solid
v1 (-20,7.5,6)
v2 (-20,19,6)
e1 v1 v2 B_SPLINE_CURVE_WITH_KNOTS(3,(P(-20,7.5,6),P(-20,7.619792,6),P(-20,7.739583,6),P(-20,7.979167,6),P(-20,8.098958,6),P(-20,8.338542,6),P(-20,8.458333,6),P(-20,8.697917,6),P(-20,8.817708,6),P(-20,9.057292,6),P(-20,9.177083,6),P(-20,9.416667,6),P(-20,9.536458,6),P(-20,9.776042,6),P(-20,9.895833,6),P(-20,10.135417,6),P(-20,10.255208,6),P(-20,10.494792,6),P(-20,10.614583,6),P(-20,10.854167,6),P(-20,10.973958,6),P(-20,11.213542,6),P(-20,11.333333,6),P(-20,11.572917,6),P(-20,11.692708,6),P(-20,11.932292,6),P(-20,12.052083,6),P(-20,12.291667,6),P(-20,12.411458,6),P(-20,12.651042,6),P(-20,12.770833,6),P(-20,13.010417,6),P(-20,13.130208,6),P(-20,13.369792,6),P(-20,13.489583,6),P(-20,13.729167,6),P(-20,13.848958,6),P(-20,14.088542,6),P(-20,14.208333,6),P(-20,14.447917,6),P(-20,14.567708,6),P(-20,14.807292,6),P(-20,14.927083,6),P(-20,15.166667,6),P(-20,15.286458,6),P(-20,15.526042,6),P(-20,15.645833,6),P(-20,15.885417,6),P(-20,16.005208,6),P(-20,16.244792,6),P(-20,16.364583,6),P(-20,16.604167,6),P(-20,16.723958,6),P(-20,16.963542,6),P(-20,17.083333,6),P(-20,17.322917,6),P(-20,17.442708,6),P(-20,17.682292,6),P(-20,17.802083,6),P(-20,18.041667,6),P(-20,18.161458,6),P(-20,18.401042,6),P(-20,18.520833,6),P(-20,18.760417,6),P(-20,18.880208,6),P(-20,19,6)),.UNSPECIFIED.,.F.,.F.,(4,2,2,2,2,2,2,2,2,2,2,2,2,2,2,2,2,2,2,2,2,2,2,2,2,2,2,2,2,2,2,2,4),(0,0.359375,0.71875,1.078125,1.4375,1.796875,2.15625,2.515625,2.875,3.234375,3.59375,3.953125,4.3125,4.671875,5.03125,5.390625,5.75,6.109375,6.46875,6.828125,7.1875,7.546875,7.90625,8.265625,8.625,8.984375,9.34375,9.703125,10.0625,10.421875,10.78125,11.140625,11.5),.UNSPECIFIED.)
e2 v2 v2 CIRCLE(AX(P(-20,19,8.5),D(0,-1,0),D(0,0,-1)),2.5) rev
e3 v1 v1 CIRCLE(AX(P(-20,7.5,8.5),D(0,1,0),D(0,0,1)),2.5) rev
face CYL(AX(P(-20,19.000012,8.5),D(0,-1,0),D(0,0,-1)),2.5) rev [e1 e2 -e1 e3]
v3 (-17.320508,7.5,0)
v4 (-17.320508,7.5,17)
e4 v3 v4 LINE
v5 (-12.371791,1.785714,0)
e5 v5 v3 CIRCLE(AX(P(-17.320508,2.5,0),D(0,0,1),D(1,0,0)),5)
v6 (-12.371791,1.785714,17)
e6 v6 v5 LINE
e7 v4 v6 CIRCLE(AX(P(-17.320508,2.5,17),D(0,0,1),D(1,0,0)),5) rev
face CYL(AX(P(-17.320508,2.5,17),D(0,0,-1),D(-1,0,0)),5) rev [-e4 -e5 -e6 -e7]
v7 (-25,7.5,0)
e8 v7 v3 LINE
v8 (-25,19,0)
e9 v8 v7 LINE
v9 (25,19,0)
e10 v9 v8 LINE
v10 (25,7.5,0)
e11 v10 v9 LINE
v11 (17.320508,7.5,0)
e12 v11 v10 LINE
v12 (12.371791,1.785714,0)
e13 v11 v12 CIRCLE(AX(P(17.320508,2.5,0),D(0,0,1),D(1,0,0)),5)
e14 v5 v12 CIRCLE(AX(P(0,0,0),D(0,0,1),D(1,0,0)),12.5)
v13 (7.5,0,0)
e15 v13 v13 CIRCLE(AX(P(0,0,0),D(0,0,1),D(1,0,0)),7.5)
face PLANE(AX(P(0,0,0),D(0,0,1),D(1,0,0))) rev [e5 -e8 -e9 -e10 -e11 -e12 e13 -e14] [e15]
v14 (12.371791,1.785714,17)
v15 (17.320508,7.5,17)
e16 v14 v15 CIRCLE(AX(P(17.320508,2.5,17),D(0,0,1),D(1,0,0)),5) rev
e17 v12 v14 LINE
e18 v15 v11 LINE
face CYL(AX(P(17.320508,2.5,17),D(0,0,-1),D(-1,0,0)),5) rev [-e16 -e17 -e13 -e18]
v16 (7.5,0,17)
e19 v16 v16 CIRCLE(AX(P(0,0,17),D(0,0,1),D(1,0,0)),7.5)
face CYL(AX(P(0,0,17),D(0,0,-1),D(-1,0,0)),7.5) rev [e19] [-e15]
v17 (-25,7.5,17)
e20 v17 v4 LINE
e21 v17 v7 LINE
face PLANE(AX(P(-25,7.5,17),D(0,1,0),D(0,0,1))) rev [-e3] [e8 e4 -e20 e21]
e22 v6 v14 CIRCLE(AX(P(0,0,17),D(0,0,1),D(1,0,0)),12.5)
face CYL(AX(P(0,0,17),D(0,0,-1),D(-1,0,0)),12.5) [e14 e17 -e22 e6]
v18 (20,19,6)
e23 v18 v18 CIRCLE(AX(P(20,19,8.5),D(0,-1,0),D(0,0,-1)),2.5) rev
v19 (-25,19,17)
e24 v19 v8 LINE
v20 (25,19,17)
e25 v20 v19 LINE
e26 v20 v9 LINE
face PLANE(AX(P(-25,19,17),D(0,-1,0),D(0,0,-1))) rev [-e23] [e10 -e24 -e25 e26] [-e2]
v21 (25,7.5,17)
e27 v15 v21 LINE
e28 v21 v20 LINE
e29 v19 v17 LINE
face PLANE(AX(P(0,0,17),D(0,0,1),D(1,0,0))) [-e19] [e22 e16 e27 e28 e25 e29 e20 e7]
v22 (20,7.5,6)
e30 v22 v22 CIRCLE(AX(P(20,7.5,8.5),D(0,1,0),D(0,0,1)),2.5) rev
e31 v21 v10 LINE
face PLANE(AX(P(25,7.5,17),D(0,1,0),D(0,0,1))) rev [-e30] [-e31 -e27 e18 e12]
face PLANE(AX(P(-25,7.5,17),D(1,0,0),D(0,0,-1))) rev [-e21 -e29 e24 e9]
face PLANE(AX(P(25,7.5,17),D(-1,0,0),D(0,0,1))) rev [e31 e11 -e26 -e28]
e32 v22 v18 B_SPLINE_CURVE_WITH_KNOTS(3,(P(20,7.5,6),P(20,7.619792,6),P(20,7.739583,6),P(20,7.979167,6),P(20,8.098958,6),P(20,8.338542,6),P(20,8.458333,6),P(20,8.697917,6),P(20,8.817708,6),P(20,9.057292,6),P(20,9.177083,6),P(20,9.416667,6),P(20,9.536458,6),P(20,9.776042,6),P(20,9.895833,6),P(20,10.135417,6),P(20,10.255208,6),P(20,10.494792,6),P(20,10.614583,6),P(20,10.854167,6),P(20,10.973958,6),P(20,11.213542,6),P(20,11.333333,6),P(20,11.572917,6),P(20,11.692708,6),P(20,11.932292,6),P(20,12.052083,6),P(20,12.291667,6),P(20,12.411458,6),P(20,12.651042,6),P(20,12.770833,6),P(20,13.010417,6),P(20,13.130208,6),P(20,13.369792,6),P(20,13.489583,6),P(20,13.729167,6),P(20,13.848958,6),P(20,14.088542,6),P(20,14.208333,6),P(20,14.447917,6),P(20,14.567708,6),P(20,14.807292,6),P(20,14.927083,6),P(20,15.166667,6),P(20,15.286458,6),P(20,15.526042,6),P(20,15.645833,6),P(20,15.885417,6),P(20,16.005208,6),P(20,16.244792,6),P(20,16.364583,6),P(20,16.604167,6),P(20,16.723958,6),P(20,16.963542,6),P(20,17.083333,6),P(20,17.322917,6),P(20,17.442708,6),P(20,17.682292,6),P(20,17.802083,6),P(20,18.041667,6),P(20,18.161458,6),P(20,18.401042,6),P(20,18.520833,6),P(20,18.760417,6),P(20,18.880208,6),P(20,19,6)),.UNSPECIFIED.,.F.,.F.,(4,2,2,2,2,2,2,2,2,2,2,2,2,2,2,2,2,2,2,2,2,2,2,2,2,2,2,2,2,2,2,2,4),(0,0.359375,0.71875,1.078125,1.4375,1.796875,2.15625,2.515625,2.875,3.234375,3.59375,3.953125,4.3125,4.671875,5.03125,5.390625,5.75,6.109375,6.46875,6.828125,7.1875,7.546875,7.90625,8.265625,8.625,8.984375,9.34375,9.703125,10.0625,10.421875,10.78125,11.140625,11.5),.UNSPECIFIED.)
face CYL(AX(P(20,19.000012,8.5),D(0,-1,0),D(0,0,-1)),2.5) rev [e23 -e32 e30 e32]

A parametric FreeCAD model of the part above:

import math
import FreeCAD as App
import Part
import Sketcher

V = App.Vector
Q = App.Units.Quantity


def edges_at(feature, points):
    """Names of the edges that pass closest to the given points."""
    edges = feature.Shape.Edges
    near = lambda p: min(range(len(edges)), key=lambda i: edges[i].distToShape(Part.Vertex(*p))[0])
    return sorted({f"Edge{near(p) + 1}" for p in points})

doc = App.newDocument("Part")
params = doc.addObject("Spreadsheet::Sheet", "Params")
for row, (alias, value) in enumerate([
    ("sketch1_diameter", "15 mm"),
    ("sketch1_radius", "12.5 mm"),
    ("sketch1_width", "50 mm"),
    ("sketch1_width2", "15 mm"),
    ("sketch1_height", "11.5 mm"),
    ("pad1_length", "17 mm"),
    ("sketch2_diameter", "5 mm"),
    ("sketch3_diameter", "5 mm"),
    ("sketch4_diameter", "5 mm"),
    ("pocket3_length", "44.660623 mm"),
    ("fillet_radius", "5 mm"),
    ("fillet2_radius", "5 mm"),
], start=1):
    params.set(f"A{row}", alias)
    params.set(f"B{row}", "=" + value)
    params.setAlias(f"B{row}", alias)

body = doc.addObject("PartDesign::Body", "Body")

# Sketch on XY plane
sketch1 = body.newObject("Sketcher::SketchObject", "Sketch")
sketch1.AttachmentSupport = (doc.getObject("XY_Plane"), [""])
sketch1.MapMode = "FlatFace"
sketch1.addGeometry([
    Part.LineSegment(V(25, 19, 0), V(-25, 19, 0)),  # 0
    Part.LineSegment(V(-25, 19, 0), V(-25, 7.5, 0)),  # 1
    Part.LineSegment(V(-25, 7.5, 0), V(-10, 7.5, 0)),  # 2
    Part.ArcOfCircle(Part.Circle(V(0, 0, 0), V(0, 0, 1), 12.5), math.radians(143.130102), math.radians(396.869898)),  # 3
    Part.LineSegment(V(10, 7.5, 0), V(25, 7.5, 0)),  # 4
    Part.LineSegment(V(25, 7.5, 0), V(25, 19, 0)),  # 5
    Part.Circle(V(0, 0, 0), V(0, 0, 1), 7.5),  # 6
], False)
sketch1.addConstraint([
    Sketcher.Constraint("Coincident", 0, 2, 1, 1),
    Sketcher.Constraint("Coincident", 1, 2, 2, 1),
    Sketcher.Constraint("Coincident", 2, 2, 3, 1),
    Sketcher.Constraint("Coincident", 3, 2, 4, 1),
    Sketcher.Constraint("Coincident", 4, 2, 5, 1),
    Sketcher.Constraint("Coincident", 5, 2, 0, 1),
    Sketcher.Constraint("Horizontal", 0),
    Sketcher.Constraint("Vertical", 1),
    Sketcher.Constraint("Horizontal", 2),
    Sketcher.Constraint("Horizontal", 4),
    Sketcher.Constraint("Vertical", 5),
    Sketcher.Constraint("Coincident", 3, 3, -1, 1),
    Sketcher.Constraint("Coincident", 6, 3, -1, 1),
    Sketcher.Constraint("Symmetric", 1, 2, 4, 2, -2),
    Sketcher.Constraint("Diameter", 6, Q("15 mm")),
    Sketcher.Constraint("Radius", 3, Q("12.5 mm")),
    Sketcher.Constraint("DistanceX", 0, 2, 0, 1, Q("50 mm")),
    Sketcher.Constraint("DistanceX", 2, 1, 2, 2, Q("15 mm")),
    Sketcher.Constraint("DistanceY", 1, 2, 1, 1, Q("11.5 mm")),
])
sketch1.setExpression("Constraints[14]", "Params.sketch1_diameter")
sketch1.setExpression("Constraints[15]", "Params.sketch1_radius")
sketch1.setExpression("Constraints[16]", "Params.sketch1_width")
sketch1.setExpression("Constraints[17]", "Params.sketch1_width2")
sketch1.setExpression("Constraints[18]", "Params.sketch1_height")
pad1 = body.newObject("PartDesign::Pad", "Pad")
pad1.Profile = sketch1
pad1.setExpression("Length", "Params.pad1_length")

# Sketch on XZ plane
sketch2 = body.newObject("Sketcher::SketchObject", "Sketch001")
sketch2.AttachmentSupport = (doc.getObject("XZ_Plane"), [""])
sketch2.MapMode = "FlatFace"
sketch2.AttachmentOffset = App.Placement(V(0, 0, -19), App.Rotation())
sketch2.addGeometry(Part.Circle(V(20, 8.5, 0), V(0, 0, 1), 2.5), False)
sketch2.addConstraint([
    Sketcher.Constraint("Diameter", 0, Q("5 mm")),
    Sketcher.Constraint("DistanceX", -1, 1, 0, 3, Q("20 mm")),
    Sketcher.Constraint("DistanceY", -1, 1, 0, 3, Q("8.5 mm")),
])
sketch2.setExpression("Constraints[0]", "Params.sketch2_diameter")
pocket1 = body.newObject("PartDesign::Pocket", "Pocket")
pocket1.Profile = sketch2
pocket1.Type = "UpToFirst"
pocket1.Reversed = True

# Sketch on XZ plane
sketch3 = body.newObject("Sketcher::SketchObject", "Sketch002")
sketch3.AttachmentSupport = (doc.getObject("XZ_Plane"), [""])
sketch3.MapMode = "FlatFace"
sketch3.AttachmentOffset = App.Placement(V(0, 0, -19), App.Rotation())
sketch3.addGeometry(Part.Circle(V(-20, 8.5, 0), V(0, 0, 1), 2.5), False)
sketch3.addConstraint([
    Sketcher.Constraint("Diameter", 0, Q("5 mm")),
    Sketcher.Constraint("DistanceX", 0, 3, -1, 1, Q("20 mm")),
    Sketcher.Constraint("DistanceY", -1, 1, 0, 3, Q("8.5 mm")),
])
sketch3.setExpression("Constraints[0]", "Params.sketch3_diameter")
pocket2 = body.newObject("PartDesign::Pocket", "Pocket001")
pocket2.Profile = sketch3
pocket2.Type = "UpToFirst"
pocket2.Reversed = True

# Sketch on XZ plane
sketch4 = body.newObject("Sketcher::SketchObject", "Sketch003")
sketch4.AttachmentSupport = (doc.getObject("XZ_Plane"), [""])
sketch4.MapMode = "FlatFace"
sketch4.AttachmentOffset = App.Placement(V(0, 0, -19), App.Rotation())
sketch4.addGeometry([
    Part.Circle(V(20, 8.5, 0), V(0, 0, 1), 2.5),
    Part.Circle(V(-20, 8.5, 0), V(0, 0, 1), 2.5),
], False)
sketch4.addConstraint([
    Sketcher.Constraint("Equal", 0, 1),
    Sketcher.Constraint("Symmetric", 0, 3, 1, 3, -2),
    Sketcher.Constraint("Diameter", 0, Q("5 mm")),
    Sketcher.Constraint("DistanceX", -1, 1, 0, 3, Q("20 mm")),
    Sketcher.Constraint("DistanceY", -1, 1, 0, 3, Q("8.5 mm")),
])
sketch4.setExpression("Constraints[2]", "Params.sketch4_diameter")
pocket3 = body.newObject("PartDesign::Pocket", "Pocket002")
pocket3.Profile = sketch4
pocket3.setExpression("Length", "Params.pocket3_length")
doc.recompute()

fillet = body.newObject("PartDesign::Fillet", "Fillet")
fillet.Base = (pocket3, edges_at(pocket3, [(-10, 7.5, 8.5)]))
fillet.setExpression("Radius", "Params.fillet_radius")
doc.recompute()

fillet2 = body.newObject("PartDesign::Fillet", "Fillet001")
fillet2.Base = (fillet, edges_at(fillet, [(10, 7.5, 8.5)]))
fillet2.setExpression("Radius", "Params.fillet2_radius")

doc.recompute()
